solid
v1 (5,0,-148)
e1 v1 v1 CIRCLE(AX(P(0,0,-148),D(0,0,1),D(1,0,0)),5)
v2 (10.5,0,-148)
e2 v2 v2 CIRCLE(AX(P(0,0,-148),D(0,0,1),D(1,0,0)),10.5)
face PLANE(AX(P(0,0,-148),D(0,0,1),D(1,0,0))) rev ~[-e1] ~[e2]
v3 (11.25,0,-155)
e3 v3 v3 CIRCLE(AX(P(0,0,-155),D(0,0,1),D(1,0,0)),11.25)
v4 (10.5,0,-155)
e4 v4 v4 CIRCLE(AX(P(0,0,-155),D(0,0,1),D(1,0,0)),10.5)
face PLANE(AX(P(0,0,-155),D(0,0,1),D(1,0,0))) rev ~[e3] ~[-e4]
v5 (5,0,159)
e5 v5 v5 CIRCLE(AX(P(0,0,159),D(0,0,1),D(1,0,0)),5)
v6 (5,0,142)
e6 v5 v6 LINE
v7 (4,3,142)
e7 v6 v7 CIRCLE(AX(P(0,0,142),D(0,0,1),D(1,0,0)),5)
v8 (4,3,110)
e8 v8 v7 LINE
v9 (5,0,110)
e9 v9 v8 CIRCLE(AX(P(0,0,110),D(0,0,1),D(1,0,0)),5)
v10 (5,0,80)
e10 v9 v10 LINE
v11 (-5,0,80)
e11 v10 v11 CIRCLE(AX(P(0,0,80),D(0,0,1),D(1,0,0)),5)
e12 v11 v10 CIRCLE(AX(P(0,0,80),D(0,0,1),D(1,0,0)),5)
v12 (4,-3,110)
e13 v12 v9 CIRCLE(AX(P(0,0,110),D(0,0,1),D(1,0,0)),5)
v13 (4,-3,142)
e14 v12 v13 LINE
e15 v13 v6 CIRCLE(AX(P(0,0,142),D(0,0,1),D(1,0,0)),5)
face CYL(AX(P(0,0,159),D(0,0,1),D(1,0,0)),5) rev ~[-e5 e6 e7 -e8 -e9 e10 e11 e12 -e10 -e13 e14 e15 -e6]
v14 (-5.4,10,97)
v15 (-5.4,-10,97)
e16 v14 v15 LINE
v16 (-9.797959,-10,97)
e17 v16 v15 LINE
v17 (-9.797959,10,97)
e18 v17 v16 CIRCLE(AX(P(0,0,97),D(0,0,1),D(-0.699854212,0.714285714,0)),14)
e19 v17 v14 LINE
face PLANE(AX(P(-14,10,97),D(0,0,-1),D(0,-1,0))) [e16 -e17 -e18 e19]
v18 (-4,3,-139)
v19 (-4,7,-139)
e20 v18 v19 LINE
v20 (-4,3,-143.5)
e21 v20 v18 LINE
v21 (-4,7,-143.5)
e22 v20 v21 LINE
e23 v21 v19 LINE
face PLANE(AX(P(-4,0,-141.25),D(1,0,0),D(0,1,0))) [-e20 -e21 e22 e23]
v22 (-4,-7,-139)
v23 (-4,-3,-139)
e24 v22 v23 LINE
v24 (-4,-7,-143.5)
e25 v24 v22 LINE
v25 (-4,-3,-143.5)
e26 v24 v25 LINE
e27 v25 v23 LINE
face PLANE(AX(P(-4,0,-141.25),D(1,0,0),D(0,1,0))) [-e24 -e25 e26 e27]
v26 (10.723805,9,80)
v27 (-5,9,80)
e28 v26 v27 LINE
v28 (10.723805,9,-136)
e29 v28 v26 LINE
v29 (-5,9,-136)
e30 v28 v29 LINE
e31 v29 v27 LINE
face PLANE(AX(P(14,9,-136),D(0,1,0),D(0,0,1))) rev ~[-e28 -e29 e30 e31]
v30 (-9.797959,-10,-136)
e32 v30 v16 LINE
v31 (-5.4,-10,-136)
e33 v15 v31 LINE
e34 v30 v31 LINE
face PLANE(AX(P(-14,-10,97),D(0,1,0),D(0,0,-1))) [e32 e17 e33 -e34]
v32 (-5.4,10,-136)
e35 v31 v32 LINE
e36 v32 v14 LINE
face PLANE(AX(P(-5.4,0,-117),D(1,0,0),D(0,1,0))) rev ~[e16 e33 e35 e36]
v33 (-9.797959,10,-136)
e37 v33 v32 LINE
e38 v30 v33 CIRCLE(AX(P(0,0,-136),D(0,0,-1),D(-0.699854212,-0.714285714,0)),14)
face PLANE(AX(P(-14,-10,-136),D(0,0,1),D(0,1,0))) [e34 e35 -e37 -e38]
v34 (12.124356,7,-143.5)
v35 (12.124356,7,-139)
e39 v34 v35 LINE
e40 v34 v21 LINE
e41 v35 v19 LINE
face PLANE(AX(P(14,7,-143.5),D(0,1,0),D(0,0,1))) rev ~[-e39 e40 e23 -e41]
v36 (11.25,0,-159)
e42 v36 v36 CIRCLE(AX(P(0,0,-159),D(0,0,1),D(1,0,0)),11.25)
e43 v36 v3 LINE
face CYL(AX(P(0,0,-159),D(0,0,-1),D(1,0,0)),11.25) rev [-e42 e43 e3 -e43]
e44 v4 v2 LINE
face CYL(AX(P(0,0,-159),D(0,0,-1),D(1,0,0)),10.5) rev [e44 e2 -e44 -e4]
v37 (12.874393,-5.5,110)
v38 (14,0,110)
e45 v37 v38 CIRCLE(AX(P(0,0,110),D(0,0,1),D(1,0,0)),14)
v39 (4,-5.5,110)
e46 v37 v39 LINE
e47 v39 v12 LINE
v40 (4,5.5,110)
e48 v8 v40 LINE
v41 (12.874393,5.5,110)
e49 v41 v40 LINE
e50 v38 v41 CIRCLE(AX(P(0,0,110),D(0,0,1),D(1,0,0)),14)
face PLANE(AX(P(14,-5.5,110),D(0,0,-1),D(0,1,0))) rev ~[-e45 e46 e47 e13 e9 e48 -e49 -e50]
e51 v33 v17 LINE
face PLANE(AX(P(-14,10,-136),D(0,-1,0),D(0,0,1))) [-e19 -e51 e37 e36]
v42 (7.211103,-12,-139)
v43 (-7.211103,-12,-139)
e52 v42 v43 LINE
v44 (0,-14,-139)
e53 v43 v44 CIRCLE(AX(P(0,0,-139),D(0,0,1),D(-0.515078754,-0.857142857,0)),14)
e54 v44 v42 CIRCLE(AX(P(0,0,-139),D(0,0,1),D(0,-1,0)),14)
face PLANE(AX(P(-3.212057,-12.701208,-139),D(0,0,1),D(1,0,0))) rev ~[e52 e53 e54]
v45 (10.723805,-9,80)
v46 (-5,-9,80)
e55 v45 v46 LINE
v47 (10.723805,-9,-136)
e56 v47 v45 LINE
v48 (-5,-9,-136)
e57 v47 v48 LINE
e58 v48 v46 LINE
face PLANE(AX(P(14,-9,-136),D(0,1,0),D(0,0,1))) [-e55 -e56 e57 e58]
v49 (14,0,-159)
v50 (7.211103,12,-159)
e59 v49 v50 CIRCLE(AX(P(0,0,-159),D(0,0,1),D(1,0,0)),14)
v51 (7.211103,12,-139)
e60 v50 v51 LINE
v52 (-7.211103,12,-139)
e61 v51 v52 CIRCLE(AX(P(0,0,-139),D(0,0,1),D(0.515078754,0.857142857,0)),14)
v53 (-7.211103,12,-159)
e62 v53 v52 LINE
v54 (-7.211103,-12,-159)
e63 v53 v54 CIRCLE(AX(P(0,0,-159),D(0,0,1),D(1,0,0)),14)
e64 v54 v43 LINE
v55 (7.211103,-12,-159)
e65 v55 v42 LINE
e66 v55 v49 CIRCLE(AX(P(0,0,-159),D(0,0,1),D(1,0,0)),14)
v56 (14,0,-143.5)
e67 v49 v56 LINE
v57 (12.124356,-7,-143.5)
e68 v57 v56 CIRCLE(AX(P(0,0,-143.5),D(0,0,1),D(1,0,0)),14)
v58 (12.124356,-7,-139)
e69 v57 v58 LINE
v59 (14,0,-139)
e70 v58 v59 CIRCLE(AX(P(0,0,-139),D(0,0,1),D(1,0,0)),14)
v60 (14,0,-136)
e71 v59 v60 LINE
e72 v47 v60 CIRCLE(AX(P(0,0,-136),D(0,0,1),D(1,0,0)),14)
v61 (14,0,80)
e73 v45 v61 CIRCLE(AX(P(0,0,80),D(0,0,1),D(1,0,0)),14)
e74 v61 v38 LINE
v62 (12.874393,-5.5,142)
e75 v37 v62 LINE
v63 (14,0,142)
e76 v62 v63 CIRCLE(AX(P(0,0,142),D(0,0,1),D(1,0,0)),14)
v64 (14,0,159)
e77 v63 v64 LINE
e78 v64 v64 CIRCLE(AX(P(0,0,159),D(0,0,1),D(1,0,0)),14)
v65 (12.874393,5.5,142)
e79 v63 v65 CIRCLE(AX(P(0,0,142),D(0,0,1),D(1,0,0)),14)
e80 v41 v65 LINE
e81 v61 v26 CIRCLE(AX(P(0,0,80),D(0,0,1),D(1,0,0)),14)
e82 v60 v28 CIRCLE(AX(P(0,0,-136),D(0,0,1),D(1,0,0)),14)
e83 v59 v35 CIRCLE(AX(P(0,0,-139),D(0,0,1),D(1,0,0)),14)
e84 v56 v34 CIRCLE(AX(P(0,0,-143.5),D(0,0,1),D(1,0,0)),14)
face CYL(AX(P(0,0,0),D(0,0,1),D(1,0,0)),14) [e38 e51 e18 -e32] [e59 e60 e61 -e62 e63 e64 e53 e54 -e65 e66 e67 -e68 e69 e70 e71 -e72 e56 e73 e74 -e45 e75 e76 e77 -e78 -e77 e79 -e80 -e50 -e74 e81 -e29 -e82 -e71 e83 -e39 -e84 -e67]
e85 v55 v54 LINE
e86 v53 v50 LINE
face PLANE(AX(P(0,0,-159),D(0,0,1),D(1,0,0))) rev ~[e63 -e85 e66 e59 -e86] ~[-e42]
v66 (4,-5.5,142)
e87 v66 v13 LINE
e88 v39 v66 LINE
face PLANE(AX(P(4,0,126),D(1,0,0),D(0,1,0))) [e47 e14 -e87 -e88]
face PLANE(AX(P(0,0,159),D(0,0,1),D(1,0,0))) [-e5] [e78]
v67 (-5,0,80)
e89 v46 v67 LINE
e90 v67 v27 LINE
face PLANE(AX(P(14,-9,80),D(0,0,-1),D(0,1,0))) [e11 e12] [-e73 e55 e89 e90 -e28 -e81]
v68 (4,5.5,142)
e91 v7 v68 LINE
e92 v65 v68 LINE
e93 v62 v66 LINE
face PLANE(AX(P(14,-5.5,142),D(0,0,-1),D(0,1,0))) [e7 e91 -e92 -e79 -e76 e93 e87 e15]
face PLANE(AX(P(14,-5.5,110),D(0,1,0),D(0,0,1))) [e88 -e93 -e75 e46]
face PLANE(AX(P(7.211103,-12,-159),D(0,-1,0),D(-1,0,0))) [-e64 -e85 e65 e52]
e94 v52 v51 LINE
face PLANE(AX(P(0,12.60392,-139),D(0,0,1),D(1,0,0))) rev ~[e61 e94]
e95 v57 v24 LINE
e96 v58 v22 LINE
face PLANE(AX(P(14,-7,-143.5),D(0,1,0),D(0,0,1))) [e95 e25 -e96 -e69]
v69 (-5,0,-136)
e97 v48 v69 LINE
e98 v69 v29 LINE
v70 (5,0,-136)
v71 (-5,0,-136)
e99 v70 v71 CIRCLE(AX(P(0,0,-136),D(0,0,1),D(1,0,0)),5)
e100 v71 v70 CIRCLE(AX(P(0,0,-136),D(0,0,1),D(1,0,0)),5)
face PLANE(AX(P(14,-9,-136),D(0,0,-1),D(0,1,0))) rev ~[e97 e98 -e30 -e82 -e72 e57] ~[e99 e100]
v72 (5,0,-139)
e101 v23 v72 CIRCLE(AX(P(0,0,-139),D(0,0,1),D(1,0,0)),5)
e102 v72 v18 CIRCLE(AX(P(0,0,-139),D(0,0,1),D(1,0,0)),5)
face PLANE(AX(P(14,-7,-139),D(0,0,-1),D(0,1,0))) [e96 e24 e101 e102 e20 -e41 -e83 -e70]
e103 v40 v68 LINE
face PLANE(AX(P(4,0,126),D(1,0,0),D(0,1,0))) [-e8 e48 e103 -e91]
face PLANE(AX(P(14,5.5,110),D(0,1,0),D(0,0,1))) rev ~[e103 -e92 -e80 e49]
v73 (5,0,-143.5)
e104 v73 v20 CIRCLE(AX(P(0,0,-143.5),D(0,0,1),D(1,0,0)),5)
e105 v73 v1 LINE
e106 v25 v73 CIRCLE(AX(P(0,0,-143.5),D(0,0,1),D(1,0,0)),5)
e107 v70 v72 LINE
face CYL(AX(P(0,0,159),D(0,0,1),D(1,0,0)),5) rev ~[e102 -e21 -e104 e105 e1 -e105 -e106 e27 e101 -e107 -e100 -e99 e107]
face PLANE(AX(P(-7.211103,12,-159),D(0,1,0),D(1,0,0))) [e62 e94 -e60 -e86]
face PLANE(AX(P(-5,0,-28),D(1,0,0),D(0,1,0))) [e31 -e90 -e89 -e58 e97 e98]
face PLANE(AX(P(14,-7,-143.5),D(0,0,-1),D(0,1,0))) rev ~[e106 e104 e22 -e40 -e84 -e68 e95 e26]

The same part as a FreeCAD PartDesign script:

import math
import FreeCAD as App
import Part
import Sketcher

doc = App.newDocument("Part")
body = doc.addObject("PartDesign::Body", "Body")

# Sketch on XY plane
sketch1 = body.newObject("Sketcher::SketchObject", "Sketch")
sketch1.AttachmentSupport = (doc.getObject("XY_Plane"), [""])
sketch1.MapMode = "FlatFace"
sketch1.addGeometry(Part.Circle(App.Vector(0, 0, 0), App.Vector(0, 0, 1), 14), False)
sketch1.addConstraint([
    Sketcher.Constraint("Coincident", 0, 3, -1, 1),
    Sketcher.Constraint("Diameter", 0, 28.0),
])
pad1 = body.newObject("PartDesign::Pad", "Pad")
pad1.Profile = sketch1
pad1.Length = 318
pad1.Midplane = True

# Sketch on YZ plane
sketch2 = body.newObject("Sketcher::SketchObject", "Sketch001")
sketch2.AttachmentSupport = (doc.getObject("YZ_Plane"), [""])
sketch2.MapMode = "FlatFace"
sketch2.AttachmentOffset = App.Placement(App.Vector(0, 0, 14), App.Rotation())
sketch2.addGeometry([
    Part.LineSegment(App.Vector(-9, 80, 0), App.Vector(-9, -136, 0)),
    Part.LineSegment(App.Vector(-9, -136, 0), App.Vector(9, -136, 0)),
    Part.LineSegment(App.Vector(9, -136, 0), App.Vector(9, 80, 0)),
    Part.LineSegment(App.Vector(9, 80, 0), App.Vector(-9, 80, 0)),
], False)
sketch2.addConstraint([
    Sketcher.Constraint("Coincident", 0, 2, 1, 1),
    Sketcher.Constraint("Coincident", 1, 2, 2, 1),
    Sketcher.Constraint("Coincident", 2, 2, 3, 1),
    Sketcher.Constraint("Coincident", 3, 2, 0, 1),
    Sketcher.Constraint("Vertical", 0),
    Sketcher.Constraint("Horizontal", 1),
    Sketcher.Constraint("Vertical", 2),
    Sketcher.Constraint("Horizontal", 3),
    Sketcher.Constraint("DistanceX", 1, 1, 1, 2, 18.0),
    Sketcher.Constraint("DistanceY", 0, 2, 0, 1, 216.0),
    Sketcher.Constraint("DistanceX", 0, 2, -1, 1, 9.0),
    Sketcher.Constraint("DistanceY", 0, 2, -1, 1, 136.0),
])
pocket1 = body.newObject("PartDesign::Pocket", "Pocket")
pocket1.Profile = sketch2
pocket1.Length = 19

# Sketch on YZ plane
sketch3 = body.newObject("Sketcher::SketchObject", "Sketch002")
sketch3.AttachmentSupport = (doc.getObject("YZ_Plane"), [""])
sketch3.MapMode = "FlatFace"
sketch3.AttachmentOffset = App.Placement(App.Vector(0, 0, 14), App.Rotation())
sketch3.addGeometry([
    Part.LineSegment(App.Vector(-7, -139, 0), App.Vector(-7, -143.5, 0)),
    Part.LineSegment(App.Vector(-7, -143.5, 0), App.Vector(7, -143.5, 0)),
    Part.LineSegment(App.Vector(7, -143.5, 0), App.Vector(7, -139, 0)),
    Part.LineSegment(App.Vector(7, -139, 0), App.Vector(-7, -139, 0)),
], False)
sketch3.addConstraint([
    Sketcher.Constraint("Coincident", 0, 2, 1, 1),
    Sketcher.Constraint("Coincident", 1, 2, 2, 1),
    Sketcher.Constraint("Coincident", 2, 2, 3, 1),
    Sketcher.Constraint("Coincident", 3, 2, 0, 1),
    Sketcher.Constraint("Vertical", 0),
    Sketcher.Constraint("Horizontal", 1),
    Sketcher.Constraint("Vertical", 2),
    Sketcher.Constraint("Horizontal", 3),
    Sketcher.Constraint("DistanceX", 1, 1, 1, 2, 14.0),
    Sketcher.Constraint("DistanceY", 0, 2, 0, 1, 4.5),
    Sketcher.Constraint("DistanceX", 0, 2, -1, 1, 7.0),
    Sketcher.Constraint("DistanceY", 2, 2, -1, 1, 139.0),
])
pocket2 = body.newObject("PartDesign::Pocket", "Pocket001")
pocket2.Profile = sketch3
pocket2.Length = 18

# Sketch on YZ plane
sketch4 = body.newObject("Sketcher::SketchObject", "Sketch003")
sketch4.AttachmentSupport = (doc.getObject("YZ_Plane"), [""])
sketch4.MapMode = "FlatFace"
sketch4.AttachmentOffset = App.Placement(App.Vector(0, 0, -14), App.Rotation())
sketch4.addGeometry([
    Part.LineSegment(App.Vector(-10, -136, 0), App.Vector(10, -136, 0)),
    Part.LineSegment(App.Vector(10, -136, 0), App.Vector(10, 97, 0)),
    Part.LineSegment(App.Vector(10, 97, 0), App.Vector(-10, 97, 0)),
    Part.LineSegment(App.Vector(-10, 97, 0), App.Vector(-10, -136, 0)),
], False)
sketch4.addConstraint([
    Sketcher.Constraint("Coincident", 0, 2, 1, 1),
    Sketcher.Constraint("Coincident", 1, 2, 2, 1),
    Sketcher.Constraint("Coincident", 2, 2, 3, 1),
    Sketcher.Constraint("Coincident", 3, 2, 0, 1),
    Sketcher.Constraint("Horizontal", 0),
    Sketcher.Constraint("Vertical", 1),
    Sketcher.Constraint("Horizontal", 2),
    Sketcher.Constraint("Vertical", 3),
    Sketcher.Constraint("DistanceX", 0, 1, 0, 2, 20.0),
    Sketcher.Constraint("DistanceY", 1, 1, 1, 2, 233.0),
    Sketcher.Constraint("DistanceX", -1, 1, 0, 2, 10.0),
    Sketcher.Constraint("DistanceY", 0, 2, -1, 1, 136.0),
])
pocket3 = body.newObject("PartDesign::Pocket", "Pocket002")
pocket3.Profile = sketch4
pocket3.Length = 8.6
pocket3.Reversed = True

# Sketch on YZ plane
sketch5 = body.newObject("Sketcher::SketchObject", "Sketch004")
sketch5.AttachmentSupport = (doc.getObject("YZ_Plane"), [""])
sketch5.MapMode = "FlatFace"
sketch5.AttachmentOffset = App.Placement(App.Vector(0, 0, 14), App.Rotation())
sketch5.addGeometry([
    Part.LineSegment(App.Vector(-6, 142, 0), App.Vector(-6, 110, 0)),
    Part.LineSegment(App.Vector(-6, 110, 0), App.Vector(6, 110, 0)),
    Part.LineSegment(App.Vector(6, 110, 0), App.Vector(6, 142, 0)),
    Part.LineSegment(App.Vector(6, 142, 0), App.Vector(-6, 142, 0)),
], False)
sketch5.addConstraint([
    Sketcher.Constraint("Coincident", 0, 2, 1, 1),
    Sketcher.Constraint("Coincident", 1, 2, 2, 1),
    Sketcher.Constraint("Coincident", 2, 2, 3, 1),
    Sketcher.Constraint("Coincident", 3, 2, 0, 1),
    Sketcher.Constraint("Vertical", 0),
    Sketcher.Constraint("Horizontal", 1),
    Sketcher.Constraint("Vertical", 2),
    Sketcher.Constraint("Horizontal", 3),
    Sketcher.Constraint("DistanceX", 1, 1, 1, 2, 11.0),
    Sketcher.Constraint("DistanceY", 0, 2, 0, 1, 32.0),
    Sketcher.Constraint("DistanceY", -1, 1, 0, 2, 110.0),
    Sketcher.Constraint("DistanceX", 0, 2, -1, 1, 5.5),
])
pocket4 = body.newObject("PartDesign::Pocket", "Pocket003")
pocket4.Profile = sketch5
pocket4.Length = 10

# Sketch on XY plane
sketch6 = body.newObject("Sketcher::SketchObject", "Sketch005")
sketch6.AttachmentSupport = (doc.getObject("XY_Plane"), [""])
sketch6.MapMode = "FlatFace"
sketch6.AttachmentOffset = App.Placement(App.Vector(0, 0, -159), App.Rotation())
sketch6.addGeometry(Part.Circle(App.Vector(0, 0, 0), App.Vector(0, 0, 1), 10), False)
sketch6.addConstraint([
    Sketcher.Constraint("Coincident", 0, 3, -1, 1),
    Sketcher.Constraint("Diameter", 0, 21.0),
])
pocket5 = body.newObject("PartDesign::Pocket", "Pocket004")
pocket5.Profile = sketch6
pocket5.Length = 11
pocket5.Reversed = True

# Sketch on XY plane
sketch7 = body.newObject("Sketcher::SketchObject", "Sketch006")
sketch7.AttachmentSupport = (doc.getObject("XY_Plane"), [""])
sketch7.MapMode = "FlatFace"
sketch7.AttachmentOffset = App.Placement(App.Vector(0, 0, 159), App.Rotation())
sketch7.addGeometry(Part.Circle(App.Vector(0, 0, 0), App.Vector(0, 0, 1), 5), False)
sketch7.addConstraint([
    Sketcher.Constraint("Coincident", 0, 3, -1, 1),
    Sketcher.Constraint("Diameter", 0, 10.0),
])
pocket6 = body.newObject("PartDesign::Pocket", "Pocket005")
pocket6.Profile = sketch7
pocket6.Length = 318

# Sketch on XY plane
sketch8 = body.newObject("Sketcher::SketchObject", "Sketch007")
sketch8.AttachmentSupport = (doc.getObject("XY_Plane"), [""])
sketch8.MapMode = "FlatFace"
sketch8.AttachmentOffset = App.Placement(App.Vector(0, 0, -159), App.Rotation())
sketch8.addGeometry([
    Part.Circle(App.Vector(0, 0, 0), App.Vector(0, 0, 1), 11),
    Part.Circle(App.Vector(0, 0, 0), App.Vector(0, 0, 1), 10),
], False)
sketch8.addConstraint([
    Sketcher.Constraint("Coincident", 0, 3, -1, 1),
    Sketcher.Constraint("Coincident", 1, 3, -1, 1),
    Sketcher.Constraint("Diameter", 1, 21.0),
    Sketcher.Constraint("Diameter", 0, 22.5),
])
pocket7 = body.newObject("PartDesign::Pocket", "Pocket006")
pocket7.Profile = sketch8
pocket7.Length = 4
pocket7.Reversed = True

# Sketch on XY plane
sketch9 = body.newObject("Sketcher::SketchObject", "Sketch008")
sketch9.AttachmentSupport = (doc.getObject("XY_Plane"), [""])
sketch9.MapMode = "FlatFace"
sketch9.AttachmentOffset = App.Placement(App.Vector(0, 0, -159), App.Rotation())
sketch9.addGeometry([
    Part.ArcOfCircle(Part.Circle(App.Vector(0, 0, 0), App.Vector(0, 0, 1), 14), math.radians(-121), math.radians(-90)),  # 0
    Part.ArcOfCircle(Part.Circle(App.Vector(0, 0, 0), App.Vector(0, 0, 1), 14), math.radians(-90), math.radians(-59)),  # 1
    Part.LineSegment(App.Vector(7, -12, 0), App.Vector(-7, -12, 0)),  # 2
    Part.LineSegment(App.Vector(-7, 12, 0), App.Vector(7, 12, 0)),  # 3
    Part.ArcOfCircle(Part.Circle(App.Vector(0, 0, 0), App.Vector(0, 0, 1), 14), math.radians(59), math.radians(121)),  # 4
], False)
sketch9.addConstraint([
    Sketcher.Constraint("Tangent", 0, 2, 1, 1),
    Sketcher.Constraint("Coincident", 1, 2, 2, 1),
    Sketcher.Constraint("Coincident", 2, 2, 0, 1),
    Sketcher.Constraint("Coincident", 3, 1, 4, 2),
    Sketcher.Constraint("Coincident", 4, 1, 3, 2),
    Sketcher.Constraint("Horizontal", 2),
    Sketcher.Constraint("Horizontal", 3),
    Sketcher.Constraint("Coincident", 0, 3, -1, 1),
    Sketcher.Constraint("Coincident", 4, 3, -1, 1),
    Sketcher.Constraint("Equal", 0, 1),
    Sketcher.Constraint("Equal", 1, 4),
    Sketcher.Constraint("PointOnObject", 0, 2, -2),
    Sketcher.Constraint("Vertical", 2, 2, 3, 1),
    Sketcher.Constraint("Radius", 0, 14.0),
    Sketcher.Constraint("DistanceY", 1, 2, -1, 1, 12.0),
])
pocket8 = body.newObject("PartDesign::Pocket", "Pocket007")
pocket8.Profile = sketch9
pocket8.Length = 20
pocket8.Reversed = True

doc.recompute()
